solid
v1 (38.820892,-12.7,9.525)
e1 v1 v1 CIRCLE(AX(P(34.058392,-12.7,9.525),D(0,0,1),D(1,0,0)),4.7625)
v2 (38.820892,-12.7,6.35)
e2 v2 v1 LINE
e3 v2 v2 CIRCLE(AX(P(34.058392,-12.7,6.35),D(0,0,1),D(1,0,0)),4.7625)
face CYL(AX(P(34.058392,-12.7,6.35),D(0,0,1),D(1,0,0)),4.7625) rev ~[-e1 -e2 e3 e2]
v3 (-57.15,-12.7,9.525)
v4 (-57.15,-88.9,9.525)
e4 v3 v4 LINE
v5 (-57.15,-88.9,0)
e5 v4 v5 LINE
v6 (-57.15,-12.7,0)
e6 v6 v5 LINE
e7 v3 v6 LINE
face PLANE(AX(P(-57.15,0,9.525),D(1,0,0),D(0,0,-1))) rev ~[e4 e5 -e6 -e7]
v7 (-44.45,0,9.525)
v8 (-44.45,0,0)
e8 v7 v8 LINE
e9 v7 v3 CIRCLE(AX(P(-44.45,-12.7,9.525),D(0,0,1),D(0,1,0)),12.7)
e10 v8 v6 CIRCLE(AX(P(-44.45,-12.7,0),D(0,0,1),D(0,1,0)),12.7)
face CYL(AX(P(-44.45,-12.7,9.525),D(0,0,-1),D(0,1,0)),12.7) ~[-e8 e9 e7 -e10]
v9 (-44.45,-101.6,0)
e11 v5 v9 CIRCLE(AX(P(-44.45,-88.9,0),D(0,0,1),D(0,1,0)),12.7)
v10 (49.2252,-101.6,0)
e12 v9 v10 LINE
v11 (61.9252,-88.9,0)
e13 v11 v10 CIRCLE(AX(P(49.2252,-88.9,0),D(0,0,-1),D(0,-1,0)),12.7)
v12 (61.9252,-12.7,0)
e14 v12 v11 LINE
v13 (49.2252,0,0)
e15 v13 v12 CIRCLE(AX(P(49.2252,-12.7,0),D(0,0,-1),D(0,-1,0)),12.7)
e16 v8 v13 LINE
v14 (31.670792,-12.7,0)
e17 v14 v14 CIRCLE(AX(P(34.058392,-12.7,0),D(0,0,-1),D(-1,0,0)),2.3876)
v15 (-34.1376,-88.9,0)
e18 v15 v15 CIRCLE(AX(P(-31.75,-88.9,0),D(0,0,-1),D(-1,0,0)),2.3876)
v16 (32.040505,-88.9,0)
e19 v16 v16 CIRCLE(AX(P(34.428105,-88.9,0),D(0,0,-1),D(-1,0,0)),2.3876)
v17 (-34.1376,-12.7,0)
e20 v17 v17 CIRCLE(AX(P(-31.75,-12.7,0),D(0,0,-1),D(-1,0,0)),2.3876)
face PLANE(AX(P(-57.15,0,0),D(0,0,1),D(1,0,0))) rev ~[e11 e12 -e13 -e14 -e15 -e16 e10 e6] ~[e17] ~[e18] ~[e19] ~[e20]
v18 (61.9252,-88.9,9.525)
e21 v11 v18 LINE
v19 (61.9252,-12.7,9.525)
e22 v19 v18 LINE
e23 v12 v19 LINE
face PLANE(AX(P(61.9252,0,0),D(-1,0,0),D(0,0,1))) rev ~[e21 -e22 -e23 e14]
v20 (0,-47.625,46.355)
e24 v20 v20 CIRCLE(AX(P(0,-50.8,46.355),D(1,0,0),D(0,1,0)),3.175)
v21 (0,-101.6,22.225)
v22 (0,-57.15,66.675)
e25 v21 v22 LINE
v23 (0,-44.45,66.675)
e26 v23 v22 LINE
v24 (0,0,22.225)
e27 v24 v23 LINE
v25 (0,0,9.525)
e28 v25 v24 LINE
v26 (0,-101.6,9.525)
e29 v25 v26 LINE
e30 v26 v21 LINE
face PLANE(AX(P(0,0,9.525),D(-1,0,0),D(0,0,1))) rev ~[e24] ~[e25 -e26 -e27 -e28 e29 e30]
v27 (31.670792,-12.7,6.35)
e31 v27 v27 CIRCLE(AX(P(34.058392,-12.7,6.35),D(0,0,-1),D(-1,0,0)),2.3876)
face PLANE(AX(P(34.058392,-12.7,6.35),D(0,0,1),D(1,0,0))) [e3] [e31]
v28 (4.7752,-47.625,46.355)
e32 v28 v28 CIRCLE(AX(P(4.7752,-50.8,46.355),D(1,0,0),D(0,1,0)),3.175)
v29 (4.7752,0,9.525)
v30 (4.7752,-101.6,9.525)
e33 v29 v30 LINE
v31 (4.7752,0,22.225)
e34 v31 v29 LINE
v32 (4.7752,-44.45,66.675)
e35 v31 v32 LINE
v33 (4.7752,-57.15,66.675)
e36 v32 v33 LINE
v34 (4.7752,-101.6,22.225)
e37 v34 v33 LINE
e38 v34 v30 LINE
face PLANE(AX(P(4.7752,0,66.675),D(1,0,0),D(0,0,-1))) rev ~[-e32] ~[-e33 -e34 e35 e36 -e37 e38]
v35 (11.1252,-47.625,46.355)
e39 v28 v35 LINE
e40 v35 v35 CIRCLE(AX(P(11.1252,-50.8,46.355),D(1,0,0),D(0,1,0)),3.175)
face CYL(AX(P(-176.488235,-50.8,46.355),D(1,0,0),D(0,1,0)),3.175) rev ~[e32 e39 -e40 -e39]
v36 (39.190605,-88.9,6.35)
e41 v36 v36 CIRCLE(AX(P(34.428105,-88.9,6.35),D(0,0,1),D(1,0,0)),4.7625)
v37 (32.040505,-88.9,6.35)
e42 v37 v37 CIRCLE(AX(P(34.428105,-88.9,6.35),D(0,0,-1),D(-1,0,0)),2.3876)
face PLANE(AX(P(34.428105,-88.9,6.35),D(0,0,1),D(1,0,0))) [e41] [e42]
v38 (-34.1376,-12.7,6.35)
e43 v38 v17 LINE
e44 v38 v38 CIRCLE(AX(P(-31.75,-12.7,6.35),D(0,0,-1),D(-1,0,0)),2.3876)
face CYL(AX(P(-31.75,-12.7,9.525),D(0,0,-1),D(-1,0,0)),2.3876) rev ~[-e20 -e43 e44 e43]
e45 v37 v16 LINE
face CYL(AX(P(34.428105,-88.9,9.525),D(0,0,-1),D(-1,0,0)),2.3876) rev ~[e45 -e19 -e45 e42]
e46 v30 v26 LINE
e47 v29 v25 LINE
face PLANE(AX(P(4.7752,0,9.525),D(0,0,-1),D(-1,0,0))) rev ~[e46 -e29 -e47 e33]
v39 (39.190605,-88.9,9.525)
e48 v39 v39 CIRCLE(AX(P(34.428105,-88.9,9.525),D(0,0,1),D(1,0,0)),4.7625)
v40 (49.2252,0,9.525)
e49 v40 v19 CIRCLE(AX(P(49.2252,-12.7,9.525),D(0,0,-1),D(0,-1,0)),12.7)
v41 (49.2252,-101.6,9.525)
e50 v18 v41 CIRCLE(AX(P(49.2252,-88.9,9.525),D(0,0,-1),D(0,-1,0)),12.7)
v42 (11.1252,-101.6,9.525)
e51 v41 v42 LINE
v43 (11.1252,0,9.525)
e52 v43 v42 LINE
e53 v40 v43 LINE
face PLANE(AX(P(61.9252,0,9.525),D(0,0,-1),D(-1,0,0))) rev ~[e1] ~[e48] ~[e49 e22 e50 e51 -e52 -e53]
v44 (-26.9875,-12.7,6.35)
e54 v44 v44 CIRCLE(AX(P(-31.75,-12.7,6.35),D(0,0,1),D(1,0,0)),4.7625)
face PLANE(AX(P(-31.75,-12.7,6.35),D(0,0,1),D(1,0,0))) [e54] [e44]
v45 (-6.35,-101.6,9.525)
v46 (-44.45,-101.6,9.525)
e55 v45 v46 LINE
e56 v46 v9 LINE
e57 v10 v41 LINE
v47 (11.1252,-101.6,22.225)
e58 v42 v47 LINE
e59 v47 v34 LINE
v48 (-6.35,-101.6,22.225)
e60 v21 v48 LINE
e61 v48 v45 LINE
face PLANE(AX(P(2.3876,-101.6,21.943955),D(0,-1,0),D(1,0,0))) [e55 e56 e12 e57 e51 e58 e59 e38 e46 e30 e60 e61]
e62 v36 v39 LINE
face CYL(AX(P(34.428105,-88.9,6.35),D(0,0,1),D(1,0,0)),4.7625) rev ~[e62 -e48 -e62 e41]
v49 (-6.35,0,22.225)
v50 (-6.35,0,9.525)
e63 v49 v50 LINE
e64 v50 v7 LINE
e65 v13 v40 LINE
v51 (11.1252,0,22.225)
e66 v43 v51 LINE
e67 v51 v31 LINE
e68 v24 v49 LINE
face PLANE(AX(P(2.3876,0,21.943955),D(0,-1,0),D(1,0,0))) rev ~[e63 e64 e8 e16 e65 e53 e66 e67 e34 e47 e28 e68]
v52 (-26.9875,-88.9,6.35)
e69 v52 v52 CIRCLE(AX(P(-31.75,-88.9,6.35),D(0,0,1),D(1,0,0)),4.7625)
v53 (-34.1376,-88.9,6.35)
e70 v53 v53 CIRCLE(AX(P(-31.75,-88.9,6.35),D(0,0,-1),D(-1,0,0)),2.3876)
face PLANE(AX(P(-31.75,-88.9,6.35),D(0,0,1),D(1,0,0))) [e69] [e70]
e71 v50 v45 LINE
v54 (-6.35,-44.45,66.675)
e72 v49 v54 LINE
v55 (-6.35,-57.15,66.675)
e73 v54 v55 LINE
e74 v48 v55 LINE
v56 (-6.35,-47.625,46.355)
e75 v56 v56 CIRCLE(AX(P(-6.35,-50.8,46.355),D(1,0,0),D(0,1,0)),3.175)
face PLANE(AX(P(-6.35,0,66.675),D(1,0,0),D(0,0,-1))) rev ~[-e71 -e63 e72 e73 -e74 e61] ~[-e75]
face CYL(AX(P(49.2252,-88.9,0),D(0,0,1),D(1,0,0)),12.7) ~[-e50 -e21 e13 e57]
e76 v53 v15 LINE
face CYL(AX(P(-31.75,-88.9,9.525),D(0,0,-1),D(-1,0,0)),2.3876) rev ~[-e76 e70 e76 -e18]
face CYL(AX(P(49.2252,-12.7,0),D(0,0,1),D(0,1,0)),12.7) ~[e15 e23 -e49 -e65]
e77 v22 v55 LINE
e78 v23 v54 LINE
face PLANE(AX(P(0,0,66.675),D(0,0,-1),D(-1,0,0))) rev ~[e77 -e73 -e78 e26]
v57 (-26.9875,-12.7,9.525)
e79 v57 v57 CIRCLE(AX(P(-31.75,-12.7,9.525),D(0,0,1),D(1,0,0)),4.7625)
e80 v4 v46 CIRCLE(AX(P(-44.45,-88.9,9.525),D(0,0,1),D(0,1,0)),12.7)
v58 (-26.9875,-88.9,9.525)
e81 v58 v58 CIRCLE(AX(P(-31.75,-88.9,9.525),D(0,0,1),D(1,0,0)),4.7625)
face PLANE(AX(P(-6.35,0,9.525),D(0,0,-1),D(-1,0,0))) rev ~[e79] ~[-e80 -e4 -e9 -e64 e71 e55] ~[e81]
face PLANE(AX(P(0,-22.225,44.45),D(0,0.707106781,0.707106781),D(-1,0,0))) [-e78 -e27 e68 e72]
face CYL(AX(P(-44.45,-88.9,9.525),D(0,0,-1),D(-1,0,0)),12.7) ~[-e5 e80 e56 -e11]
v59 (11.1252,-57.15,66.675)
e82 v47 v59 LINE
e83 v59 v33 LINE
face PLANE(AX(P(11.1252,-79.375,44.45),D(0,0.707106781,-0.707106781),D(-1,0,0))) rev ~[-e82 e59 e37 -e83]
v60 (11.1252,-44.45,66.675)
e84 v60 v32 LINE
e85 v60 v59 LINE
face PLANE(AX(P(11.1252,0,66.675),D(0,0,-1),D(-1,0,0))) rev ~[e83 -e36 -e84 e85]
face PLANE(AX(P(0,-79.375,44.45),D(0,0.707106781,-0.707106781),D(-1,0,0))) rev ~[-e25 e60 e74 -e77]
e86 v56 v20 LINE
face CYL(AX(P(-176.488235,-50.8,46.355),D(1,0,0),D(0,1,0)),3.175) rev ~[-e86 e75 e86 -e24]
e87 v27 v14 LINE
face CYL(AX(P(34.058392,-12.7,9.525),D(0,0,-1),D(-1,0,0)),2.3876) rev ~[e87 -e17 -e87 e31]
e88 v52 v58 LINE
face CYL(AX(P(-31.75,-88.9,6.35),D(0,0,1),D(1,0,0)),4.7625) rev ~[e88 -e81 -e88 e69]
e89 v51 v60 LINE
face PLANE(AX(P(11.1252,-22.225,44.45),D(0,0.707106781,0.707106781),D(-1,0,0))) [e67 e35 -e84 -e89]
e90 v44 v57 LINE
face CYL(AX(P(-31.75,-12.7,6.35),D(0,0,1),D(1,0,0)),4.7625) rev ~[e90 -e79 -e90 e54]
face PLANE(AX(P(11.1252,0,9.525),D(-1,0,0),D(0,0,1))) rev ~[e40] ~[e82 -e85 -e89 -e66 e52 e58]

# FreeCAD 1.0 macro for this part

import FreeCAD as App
import Part
import Sketcher

V = App.Vector
Q = App.Units.Quantity


def edges_at(feature, points):
    """Names of the edges that pass closest to the given points."""
    edges = feature.Shape.Edges
    near = lambda p: min(range(len(edges)), key=lambda i: edges[i].distToShape(Part.Vertex(*p))[0])
    return sorted({f"Edge{near(p) + 1}" for p in points})


def add_polygon(sketch, points):
    """Adds a closed chain of lines whose ends are joined by coincident constraints."""
    first, n = sketch.GeometryCount, len(points)
    for a, b in zip(points, points[1:] + points[:1]):
        sketch.addGeometry(Part.LineSegment(App.Vector(*a, 0), App.Vector(*b, 0)), False)
    for i in range(n):
        sketch.addConstraint(Sketcher.Constraint("Coincident", first + i, 2, first + (i + 1) % n, 1))

doc = App.newDocument("Part")
params = doc.addObject("Spreadsheet::Sheet", "Params")
for row, (alias, value) in enumerate([
    ("sketch1_width", "2 in"),
    ("sketch1_width2", "0.25 in"),
    ("sketch1_height", "2.25 in"),
    ("sketch1_width3", "4.688 in"),
    ("sketch1_height2", "0.375 in"),
    ("pad1_length", "4 in"),
    ("sketch2_diameter", "0.188 in"),
    ("hole_diameter", "0.188 in"),
    ("hole_cbore_diameter", "0.375 in"),
    ("hole_cbore_depth", "0.125 in"),
    ("sketch3_diameter", "0.25 in"),
    ("hole2_diameter", "0.25 in"),
    ("chamfer_size", "1.75 in"),
    ("fillet_radius", "0.5 in"),
], start=1):
    params.set(f"A{row}", alias)
    params.set(f"B{row}", "=" + value)
    params.setAlias(f"B{row}", alias)

body = doc.addObject("PartDesign::Body", "Body")

sketch1 = body.newObject("Sketcher::SketchObject", "Sketch")
sketch1.AttachmentSupport = (doc.getObject("XZ_Plane"), [""])
sketch1.MapMode = "FlatFace"
add_polygon(sketch1, [(-57.1, 9.5), (-57.1, 0), (61.9, 0), (61.9, 9.5), (11.1, 9.5), (11.1, 66.7), (4.8, 66.7), (4.8, 9.5), (0, 9.5), (0, 66.7), (-6.3, 66.7), (-6.3, 9.5)])
sketch1.addConstraint([
    Sketcher.Constraint("Vertical", 0),
    Sketcher.Constraint("Horizontal", 1),
    Sketcher.Constraint("Vertical", 2),
    Sketcher.Constraint("Horizontal", 3),
    Sketcher.Constraint("Vertical", 4),
    Sketcher.Constraint("Horizontal", 5),
    Sketcher.Constraint("Vertical", 6),
    Sketcher.Constraint("Horizontal", 7),
    Sketcher.Constraint("Vertical", 8),
    Sketcher.Constraint("Horizontal", 9),
    Sketcher.Constraint("Vertical", 10),
    Sketcher.Constraint("Horizontal", 11),
    Sketcher.Constraint("PointOnObject", 0, 2, -1),
    Sketcher.Constraint("PointOnObject", 7, 2, -2),
    Sketcher.Constraint("Horizontal", 3, 2, 6, 2),
    Sketcher.Constraint("Horizontal", 5, 2, 8, 2),
    Sketcher.Constraint("Horizontal", 7, 2, 10, 2),
    Sketcher.Constraint("Equal", 5, 9),
    Sketcher.Constraint("Equal", 3, 11),
    Sketcher.Constraint("DistanceX", 3, 2, 3, 1, Q("2 in")),
    Sketcher.Constraint("DistanceX", 5, 2, 5, 1, Q("0.25 in")),
    Sketcher.Constraint("DistanceY", 4, 1, 4, 2, Q("2.25 in")),
    Sketcher.Constraint("DistanceX", 1, 1, 1, 2, Q("4.688 in")),
    Sketcher.Constraint("DistanceY", 0, 2, 0, 1, Q("0.375 in")),
])
sketch1.setExpression("Constraints[31]", "Params.sketch1_width")
sketch1.setExpression("Constraints[32]", "Params.sketch1_width2")
sketch1.setExpression("Constraints[33]", "Params.sketch1_height")
sketch1.setExpression("Constraints[34]", "Params.sketch1_width3")
sketch1.setExpression("Constraints[35]", "Params.sketch1_height2")
pad1 = body.newObject("PartDesign::Pad", "Pad")
pad1.Profile = sketch1
pad1.setExpression("Length", "Params.pad1_length")

sketch2 = body.newObject("Sketcher::SketchObject", "Sketch001")
sketch2.AttachmentSupport = (doc.getObject("XY_Plane"), [""])
sketch2.MapMode = "FlatFace"
sketch2.AttachmentOffset = App.Placement(V(0, 0, 0.375 * 25.4), App.Rotation())
sketch2.addGeometry([
    Part.Circle(V(34.4, -88.9, 0), V(0, 0, 1), 2.4),
    Part.Circle(V(34.1, -12.7, 0), V(0, 0, 1), 2.4),
    Part.Circle(V(-31.8, -12.7, 0), V(0, 0, 1), 2.4),
    Part.Circle(V(-31.8, -88.9, 0), V(0, 0, 1), 2.4),
], False)
sketch2.addConstraint([
    Sketcher.Constraint("Equal", 0, 1),
    Sketcher.Constraint("Equal", 1, 2),
    Sketcher.Constraint("Equal", 2, 3),
    Sketcher.Constraint("Horizontal", 1, 3, 2, 3),
    Sketcher.Constraint("Horizontal", 0, 3, 3, 3),
    Sketcher.Constraint("Vertical", 2, 3, 3, 3),
    Sketcher.Constraint("Diameter", 0, Q("0.188 in")),
    Sketcher.Constraint("DistanceY", 0, 3, 1, 3, Q("3 in")),
    Sketcher.Constraint("DistanceY", 0, 3, -1, 1, Q("3.5 in")),
    Sketcher.Constraint("DistanceX", 2, 3, -1, 1, Q("1.25 in")),
    Sketcher.Constraint("DistanceX", -1, 1, 1, 3, 34.058392),
    Sketcher.Constraint("DistanceX", -1, 1, 0, 3, 34.428105),
])
sketch2.setExpression("Constraints[6]", "Params.sketch2_diameter")
doc.recompute()
hole = body.newObject("PartDesign::Hole", "Hole")
hole.Profile = sketch2
hole.ThreadType = "None"
hole.setExpression("Diameter", "Params.hole_diameter")
hole.DepthType = "ThroughAll"
hole.HoleCutType = "Counterbore"
hole.setExpression("HoleCutDiameter", "Params.hole_cbore_diameter")
hole.setExpression("HoleCutDepth", "Params.hole_cbore_depth")

sketch3 = body.newObject("Sketcher::SketchObject", "Sketch002")
sketch3.AttachmentSupport = (doc.getObject("YZ_Plane"), [""])
sketch3.MapMode = "FlatFace"
sketch3.AttachmentOffset = App.Placement(V(0, 0, -0.25 * 25.4), App.Rotation())
sketch3.addGeometry(Part.Circle(V(-50.8, 46.4, 0), V(0, 0, 1), 3.2), False)
sketch3.addConstraint([
    Sketcher.Constraint("Diameter", 0, Q("0.25 in")),
    Sketcher.Constraint("DistanceX", 0, 3, -1, 1, Q("2 in")),
    Sketcher.Constraint("DistanceY", -1, 1, 0, 3, Q("1.825 in")),
])
sketch3.setExpression("Constraints[0]", "Params.sketch3_diameter")
doc.recompute()
hole2 = body.newObject("PartDesign::Hole", "Hole001")
hole2.Profile = sketch3
hole2.ThreadType = "None"
hole2.setExpression("Diameter", "Params.hole2_diameter")
hole2.DepthType = "ThroughAll"
hole2.Reversed = True
doc.recompute()

chamfer = body.newObject("PartDesign::Chamfer", "Chamfer")
chamfer.Base = (hole2, edges_at(hole2, [
    (-3.175, -101.6, 66.675),
    (7.95, -101.6, 66.675),
    (7.95, 0, 66.675),
    (-3.175, 0, 66.675),
]))
chamfer.setExpression("Size", "Params.chamfer_size")
doc.recompute()

fillet = body.newObject("PartDesign::Fillet", "Fillet")
fillet.Base = (chamfer, edges_at(chamfer, [
    (-57.15, -101.6, 4.763),
    (-57.15, 0, 4.763),
    (61.925, -101.6, 4.763),
    (61.925, 0, 4.763),
]))
fillet.setExpression("Radius", "Params.fillet_radius")

doc.recompute()
